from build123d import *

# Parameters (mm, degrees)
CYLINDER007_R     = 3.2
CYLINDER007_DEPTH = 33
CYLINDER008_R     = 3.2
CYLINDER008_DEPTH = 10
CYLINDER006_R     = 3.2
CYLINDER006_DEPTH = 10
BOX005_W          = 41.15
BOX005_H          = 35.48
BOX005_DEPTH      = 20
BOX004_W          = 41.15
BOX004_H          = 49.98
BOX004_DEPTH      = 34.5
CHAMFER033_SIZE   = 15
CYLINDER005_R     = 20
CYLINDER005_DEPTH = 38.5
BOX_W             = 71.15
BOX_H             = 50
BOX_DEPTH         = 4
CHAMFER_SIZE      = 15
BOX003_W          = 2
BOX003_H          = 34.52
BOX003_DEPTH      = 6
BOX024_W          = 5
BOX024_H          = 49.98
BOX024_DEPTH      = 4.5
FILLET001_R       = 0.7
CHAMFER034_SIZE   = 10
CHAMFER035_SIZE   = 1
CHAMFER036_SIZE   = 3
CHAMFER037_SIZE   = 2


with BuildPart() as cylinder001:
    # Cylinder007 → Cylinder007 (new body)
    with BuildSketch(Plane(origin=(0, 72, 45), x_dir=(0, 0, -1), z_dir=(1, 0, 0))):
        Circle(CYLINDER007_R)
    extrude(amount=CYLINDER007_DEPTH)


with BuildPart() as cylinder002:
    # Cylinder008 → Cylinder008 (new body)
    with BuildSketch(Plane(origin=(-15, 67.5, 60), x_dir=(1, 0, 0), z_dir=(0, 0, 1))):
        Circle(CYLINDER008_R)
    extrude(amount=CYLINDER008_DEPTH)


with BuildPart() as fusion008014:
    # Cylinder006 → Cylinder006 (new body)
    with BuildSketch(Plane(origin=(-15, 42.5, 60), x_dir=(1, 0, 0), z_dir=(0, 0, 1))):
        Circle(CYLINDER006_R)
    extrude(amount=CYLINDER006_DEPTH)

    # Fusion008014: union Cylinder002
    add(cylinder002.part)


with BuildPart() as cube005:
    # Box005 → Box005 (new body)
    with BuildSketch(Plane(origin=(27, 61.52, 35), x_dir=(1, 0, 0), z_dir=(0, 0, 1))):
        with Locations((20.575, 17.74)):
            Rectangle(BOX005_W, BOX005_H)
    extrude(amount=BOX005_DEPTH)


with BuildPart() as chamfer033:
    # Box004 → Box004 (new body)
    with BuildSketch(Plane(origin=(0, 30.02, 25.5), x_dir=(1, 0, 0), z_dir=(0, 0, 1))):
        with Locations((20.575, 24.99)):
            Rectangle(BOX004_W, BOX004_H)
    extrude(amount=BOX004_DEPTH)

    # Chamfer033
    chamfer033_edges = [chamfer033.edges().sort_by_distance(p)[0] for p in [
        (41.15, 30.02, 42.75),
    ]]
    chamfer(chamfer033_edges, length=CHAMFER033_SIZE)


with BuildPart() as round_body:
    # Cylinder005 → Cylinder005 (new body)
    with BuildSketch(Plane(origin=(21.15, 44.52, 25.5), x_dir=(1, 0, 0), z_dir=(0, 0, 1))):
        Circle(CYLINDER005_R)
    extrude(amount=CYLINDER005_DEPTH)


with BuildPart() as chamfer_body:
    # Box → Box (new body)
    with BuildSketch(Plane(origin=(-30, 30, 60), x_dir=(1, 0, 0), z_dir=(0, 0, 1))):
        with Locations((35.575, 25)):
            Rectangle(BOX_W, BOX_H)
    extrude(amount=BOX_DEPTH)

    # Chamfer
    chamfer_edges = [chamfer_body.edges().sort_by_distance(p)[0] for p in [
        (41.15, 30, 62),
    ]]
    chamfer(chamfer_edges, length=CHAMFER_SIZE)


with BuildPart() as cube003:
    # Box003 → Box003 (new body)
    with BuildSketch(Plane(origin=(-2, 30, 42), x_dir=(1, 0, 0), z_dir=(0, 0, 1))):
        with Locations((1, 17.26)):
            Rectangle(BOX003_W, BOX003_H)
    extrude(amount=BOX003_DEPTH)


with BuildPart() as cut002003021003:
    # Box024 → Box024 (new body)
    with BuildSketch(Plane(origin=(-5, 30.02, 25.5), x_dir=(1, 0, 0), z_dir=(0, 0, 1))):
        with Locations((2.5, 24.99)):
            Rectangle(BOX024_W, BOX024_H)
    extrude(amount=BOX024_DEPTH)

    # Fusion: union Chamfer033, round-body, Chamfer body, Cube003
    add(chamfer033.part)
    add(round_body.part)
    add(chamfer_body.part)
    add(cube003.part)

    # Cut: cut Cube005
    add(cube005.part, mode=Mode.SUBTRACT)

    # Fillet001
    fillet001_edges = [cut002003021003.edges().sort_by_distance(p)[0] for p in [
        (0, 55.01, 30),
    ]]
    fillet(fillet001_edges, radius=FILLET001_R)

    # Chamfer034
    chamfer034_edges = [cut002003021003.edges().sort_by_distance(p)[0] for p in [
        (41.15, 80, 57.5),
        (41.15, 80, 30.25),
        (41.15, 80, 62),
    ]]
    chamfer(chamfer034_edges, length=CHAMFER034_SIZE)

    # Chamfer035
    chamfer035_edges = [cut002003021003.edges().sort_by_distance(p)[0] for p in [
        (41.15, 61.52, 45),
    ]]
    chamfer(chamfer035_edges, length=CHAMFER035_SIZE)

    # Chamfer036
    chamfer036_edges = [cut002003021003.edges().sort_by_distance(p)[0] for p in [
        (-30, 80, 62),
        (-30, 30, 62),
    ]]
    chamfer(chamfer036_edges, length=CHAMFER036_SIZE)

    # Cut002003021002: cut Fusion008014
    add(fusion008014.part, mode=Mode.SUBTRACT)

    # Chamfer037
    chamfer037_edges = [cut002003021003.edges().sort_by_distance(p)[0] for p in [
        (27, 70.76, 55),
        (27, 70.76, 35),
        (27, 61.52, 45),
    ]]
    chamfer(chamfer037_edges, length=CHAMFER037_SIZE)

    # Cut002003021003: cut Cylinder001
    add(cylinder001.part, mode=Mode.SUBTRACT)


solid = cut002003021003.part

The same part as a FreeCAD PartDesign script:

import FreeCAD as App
import Part
import Sketcher
Q = App.Units.Quantity


def edges_at(feature, points):
    """Names of the edges that pass closest to the given points."""
    edges = feature.Shape.Edges
    near = lambda p: min(range(len(edges)), key=lambda i: edges[i].distToShape(Part.Vertex(*p))[0])
    return sorted({f"Edge{near(p) + 1}" for p in points})

doc = App.newDocument("Part")
params = doc.addObject("Spreadsheet::Sheet", "Params")
for row, (alias, value) in enumerate([
    ("sketch1_diameter", "6.4 mm"),
    ("pad1_length", "33 mm"),
    ("sketch2_diameter", "6.4 mm"),
    ("pad2_length", "10 mm"),
    ("sketch3_diameter", "6.4 mm"),
    ("pad3_length", "10 mm"),
    ("sketch4_width", "41.15 mm"),
    ("sketch4_height", "35.48 mm"),
    ("pad4_length", "20 mm"),
    ("sketch5_width", "41.15 mm"),
    ("sketch5_height", "49.98 mm"),
    ("pad5_length", "34.5 mm"),
    ("chamfer_size", "15 mm"),
    ("sketch6_diameter", "40 mm"),
    ("pad6_length", "38.5 mm"),
    ("sketch7_height", "50 mm"),
    ("sketch7_width", "71.15 mm"),
    ("pad7_length", "4 mm"),
    ("chamfer2_size", "15 mm"),
    ("sketch8_width", "2 mm"),
    ("sketch8_height", "34.52 mm"),
    ("pad8_length", "6 mm"),
    ("sketch9_width", "5 mm"),
    ("sketch9_height", "49.98 mm"),
    ("pad9_length", "4.5 mm"),
    ("fillet_radius", "0.7 mm"),
    ("chamfer3_size", "10 mm"),
    ("chamfer4_size", "1 mm"),
    ("chamfer5_size", "3 mm"),
    ("chamfer6_size", "2 mm"),
], start=1):
    params.set(f"A{row}", alias)
    params.set(f"B{row}", "=" + value)
    params.setAlias(f"B{row}", alias)

body = doc.addObject("PartDesign::Body", "Body")

sketch1 = body.newObject("Sketcher::SketchObject", "Sketch")
sketch1.AttachmentSupport = (doc.getObject("YZ_Plane"), [""])
sketch1.MapMode = "FlatFace"
sketch1.addGeometry(Part.Circle(App.Vector(72, 45, 0), App.Vector(0, 0, 1), 3.2), False)
sketch1.addConstraint([
    Sketcher.Constraint("Diameter", 0, Q("6.4 mm")),
    Sketcher.Constraint("DistanceX", -1, 1, 0, 3, Q("72 mm")),
    Sketcher.Constraint("DistanceY", -1, 1, 0, 3, Q("45 mm")),
])
sketch1.setExpression("Constraints[0]", "Params.sketch1_diameter")
pad1 = body.newObject("PartDesign::Pad", "Pad")
pad1.Profile = sketch1
pad1.setExpression("Length", "Params.pad1_length")
body2 = doc.addObject("PartDesign::Body", "Body001")

sketch2 = body2.newObject("Sketcher::SketchObject", "Sketch001")
sketch2.AttachmentSupport = (doc.getObject("XY_Plane001"), [""])
sketch2.MapMode = "FlatFace"
sketch2.AttachmentOffset = App.Placement(App.Vector(0, 0, 60), App.Rotation())
sketch2.addGeometry(Part.Circle(App.Vector(-15, 67.5, 0), App.Vector(0, 0, 1), 3.2), False)
sketch2.addConstraint([
    Sketcher.Constraint("Diameter", 0, Q("6.4 mm")),
    Sketcher.Constraint("DistanceX", 0, 3, -1, 1, Q("15 mm")),
    Sketcher.Constraint("DistanceY", -1, 1, 0, 3, Q("67.5 mm")),
])
sketch2.setExpression("Constraints[0]", "Params.sketch2_diameter")
pad2 = body2.newObject("PartDesign::Pad", "Pad001")
pad2.Profile = sketch2
pad2.setExpression("Length", "Params.pad2_length")
body3 = doc.addObject("PartDesign::Body", "Body002")
body3.AllowCompound = True

sketch3 = body3.newObject("Sketcher::SketchObject", "Sketch002")
sketch3.AttachmentSupport = (doc.getObject("XY_Plane002"), [""])
sketch3.MapMode = "FlatFace"
sketch3.AttachmentOffset = App.Placement(App.Vector(0, 0, 60), App.Rotation())
sketch3.addGeometry(Part.Circle(App.Vector(-15, 42.5, 0), App.Vector(0, 0, 1), 3.2), False)
sketch3.addConstraint([
    Sketcher.Constraint("Diameter", 0, Q("6.4 mm")),
    Sketcher.Constraint("DistanceX", 0, 3, -1, 1, Q("15 mm")),
    Sketcher.Constraint("DistanceY", -1, 1, 0, 3, Q("42.5 mm")),
])
sketch3.setExpression("Constraints[0]", "Params.sketch3_diameter")
pad3 = body3.newObject("PartDesign::Pad", "Pad002")
pad3.Profile = sketch3
pad3.setExpression("Length", "Params.pad3_length")
doc.recompute()

boolean = body3.newObject("PartDesign::Boolean", "Boolean")
boolean.Type = "Fuse"
boolean.addObjects([body2])
body4 = doc.addObject("PartDesign::Body", "Body003")

sketch4 = body4.newObject("Sketcher::SketchObject", "Sketch003")
sketch4.AttachmentSupport = (doc.getObject("XY_Plane003"), [""])
sketch4.MapMode = "FlatFace"
sketch4.AttachmentOffset = App.Placement(App.Vector(0, 0, 35), App.Rotation())
sketch4.addGeometry([
    Part.LineSegment(App.Vector(27, 97, 0), App.Vector(27, 61.52, 0)),
    Part.LineSegment(App.Vector(27, 61.52, 0), App.Vector(68.15, 61.52, 0)),
    Part.LineSegment(App.Vector(68.15, 61.52, 0), App.Vector(68.15, 97, 0)),
    Part.LineSegment(App.Vector(68.15, 97, 0), App.Vector(27, 97, 0)),
], False)
sketch4.addConstraint([
    Sketcher.Constraint("Coincident", 0, 2, 1, 1),
    Sketcher.Constraint("Coincident", 1, 2, 2, 1),
    Sketcher.Constraint("Coincident", 2, 2, 3, 1),
    Sketcher.Constraint("Coincident", 3, 2, 0, 1),
    Sketcher.Constraint("Vertical", 0),
    Sketcher.Constraint("Horizontal", 1),
    Sketcher.Constraint("Vertical", 2),
    Sketcher.Constraint("Horizontal", 3),
    Sketcher.Constraint("DistanceX", -1, 1, 0, 2, Q("27 mm")),
    Sketcher.Constraint("DistanceY", -1, 1, 2, 2, Q("97 mm")),
    Sketcher.Constraint("DistanceX", 1, 1, 1, 2, Q("41.15 mm")),
    Sketcher.Constraint("DistanceY", 0, 2, 0, 1, Q("35.48 mm")),
])
sketch4.setExpression("Constraints[10]", "Params.sketch4_width")
sketch4.setExpression("Constraints[11]", "Params.sketch4_height")
pad4 = body4.newObject("PartDesign::Pad", "Pad003")
pad4.Profile = sketch4
pad4.setExpression("Length", "Params.pad4_length")
body5 = doc.addObject("PartDesign::Body", "Body004")

sketch5 = body5.newObject("Sketcher::SketchObject", "Sketch004")
sketch5.AttachmentSupport = (doc.getObject("XY_Plane004"), [""])
sketch5.MapMode = "FlatFace"
sketch5.AttachmentOffset = App.Placement(App.Vector(0, 0, 25.5), App.Rotation())
sketch5.addGeometry([
    Part.LineSegment(App.Vector(0, 80, 0), App.Vector(0, 30.02, 0)),
    Part.LineSegment(App.Vector(0, 30.02, 0), App.Vector(41.15, 30.02, 0)),
    Part.LineSegment(App.Vector(41.15, 30.02, 0), App.Vector(41.15, 80, 0)),
    Part.LineSegment(App.Vector(41.15, 80, 0), App.Vector(0, 80, 0)),
], False)
sketch5.addConstraint([
    Sketcher.Constraint("Coincident", 0, 2, 1, 1),
    Sketcher.Constraint("Coincident", 1, 2, 2, 1),
    Sketcher.Constraint("Coincident", 2, 2, 3, 1),
    Sketcher.Constraint("Coincident", 3, 2, 0, 1),
    Sketcher.Constraint("Vertical", 0),
    Sketcher.Constraint("Horizontal", 1),
    Sketcher.Constraint("Vertical", 2),
    Sketcher.Constraint("Horizontal", 3),
    Sketcher.Constraint("PointOnObject", 0, 2, -2),
    Sketcher.Constraint("DistanceY", -1, 1, 2, 2, Q("80 mm")),
    Sketcher.Constraint("DistanceX", 1, 1, 1, 2, Q("41.15 mm")),
    Sketcher.Constraint("DistanceY", 0, 2, 0, 1, Q("49.98 mm")),
])
sketch5.setExpression("Constraints[10]", "Params.sketch5_width")
sketch5.setExpression("Constraints[11]", "Params.sketch5_height")
pad5 = body5.newObject("PartDesign::Pad", "Pad004")
pad5.Profile = sketch5
pad5.setExpression("Length", "Params.pad5_length")
doc.recompute()

chamfer = body5.newObject("PartDesign::Chamfer", "Chamfer")
chamfer.Base = (pad5, edges_at(pad5, [(41.15, 30.02, 42.75)]))
chamfer.setExpression("Size", "Params.chamfer_size")
body6 = doc.addObject("PartDesign::Body", "Body005")

sketch6 = body6.newObject("Sketcher::SketchObject", "Sketch005")
sketch6.AttachmentSupport = (doc.getObject("XY_Plane005"), [""])
sketch6.MapMode = "FlatFace"
sketch6.AttachmentOffset = App.Placement(App.Vector(0, 0, 25.5), App.Rotation())
sketch6.addGeometry(Part.Circle(App.Vector(21.15, 44.52, 0), App.Vector(0, 0, 1), 20), False)
sketch6.addConstraint([
    Sketcher.Constraint("Diameter", 0, Q("40 mm")),
    Sketcher.Constraint("DistanceX", -1, 1, 0, 3, Q("21.15 mm")),
    Sketcher.Constraint("DistanceY", -1, 1, 0, 3, Q("44.52 mm")),
])
sketch6.setExpression("Constraints[0]", "Params.sketch6_diameter")
pad6 = body6.newObject("PartDesign::Pad", "Pad005")
pad6.Profile = sketch6
pad6.setExpression("Length", "Params.pad6_length")
body7 = doc.addObject("PartDesign::Body", "Body006")

sketch7 = body7.newObject("Sketcher::SketchObject", "Sketch006")
sketch7.AttachmentSupport = (doc.getObject("XY_Plane006"), [""])
sketch7.MapMode = "FlatFace"
sketch7.AttachmentOffset = App.Placement(App.Vector(0, 0, 60), App.Rotation())
sketch7.addGeometry([
    Part.LineSegment(App.Vector(-30, 80, 0), App.Vector(-30, 30, 0)),
    Part.LineSegment(App.Vector(-30, 30, 0), App.Vector(41.15, 30, 0)),
    Part.LineSegment(App.Vector(41.15, 30, 0), App.Vector(41.15, 80, 0)),
    Part.LineSegment(App.Vector(41.15, 80, 0), App.Vector(-30, 80, 0)),
], False)
sketch7.addConstraint([
    Sketcher.Constraint("Coincident", 0, 2, 1, 1),
    Sketcher.Constraint("Coincident", 1, 2, 2, 1),
    Sketcher.Constraint("Coincident", 2, 2, 3, 1),
    Sketcher.Constraint("Coincident", 3, 2, 0, 1),
    Sketcher.Constraint("Vertical", 0),
    Sketcher.Constraint("Horizontal", 1),
    Sketcher.Constraint("Vertical", 2),
    Sketcher.Constraint("Horizontal", 3),
    Sketcher.Constraint("DistanceY", 0, 2, 0, 1, Q("50 mm")),
    Sketcher.Constraint("DistanceX", 0, 2, -1, 1, Q("30 mm")),
    Sketcher.Constraint("DistanceY", -1, 1, 0, 2, Q("30 mm")),
    Sketcher.Constraint("DistanceX", 1, 1, 1, 2, Q("71.15 mm")),
])
sketch7.setExpression("Constraints[8]", "Params.sketch7_height")
sketch7.setExpression("Constraints[11]", "Params.sketch7_width")
pad7 = body7.newObject("PartDesign::Pad", "Pad006")
pad7.Profile = sketch7
pad7.setExpression("Length", "Params.pad7_length")
doc.recompute()

chamfer2 = body7.newObject("PartDesign::Chamfer", "Chamfer001")
chamfer2.Base = (pad7, edges_at(pad7, [(41.15, 30, 62)]))
chamfer2.setExpression("Size", "Params.chamfer2_size")
body8 = doc.addObject("PartDesign::Body", "Body007")

sketch8 = body8.newObject("Sketcher::SketchObject", "Sketch007")
sketch8.AttachmentSupport = (doc.getObject("XY_Plane007"), [""])
sketch8.MapMode = "FlatFace"
sketch8.AttachmentOffset = App.Placement(App.Vector(0, 0, 42), App.Rotation())
sketch8.addGeometry([
    Part.LineSegment(App.Vector(-2, 64.52, 0), App.Vector(-2, 30, 0)),
    Part.LineSegment(App.Vector(-2, 30, 0), App.Vector(0, 30, 0)),
    Part.LineSegment(App.Vector(0, 30, 0), App.Vector(0, 64.52, 0)),
    Part.LineSegment(App.Vector(0, 64.52, 0), App.Vector(-2, 64.52, 0)),
], False)
sketch8.addConstraint([
    Sketcher.Constraint("Coincident", 0, 2, 1, 1),
    Sketcher.Constraint("Coincident", 1, 2, 2, 1),
    Sketcher.Constraint("Coincident", 2, 2, 3, 1),
    Sketcher.Constraint("Coincident", 3, 2, 0, 1),
    Sketcher.Constraint("Vertical", 0),
    Sketcher.Constraint("Horizontal", 1),
    Sketcher.Constraint("Vertical", 2),
    Sketcher.Constraint("Horizontal", 3),
    Sketcher.Constraint("PointOnObject", 1, 2, -2),
    Sketcher.Constraint("DistanceX", 1, 1, 1, 2, Q("2 mm")),
    Sketcher.Constraint("DistanceY", -1, 1, 0, 2, Q("30 mm")),
    Sketcher.Constraint("DistanceY", 0, 2, 0, 1, Q("34.52 mm")),
])
sketch8.setExpression("Constraints[9]", "Params.sketch8_width")
sketch8.setExpression("Constraints[11]", "Params.sketch8_height")
pad8 = body8.newObject("PartDesign::Pad", "Pad007")
pad8.Profile = sketch8
pad8.setExpression("Length", "Params.pad8_length")
body9 = doc.addObject("PartDesign::Body", "Body008")

sketch9 = body9.newObject("Sketcher::SketchObject", "Sketch008")
sketch9.AttachmentSupport = (doc.getObject("XY_Plane008"), [""])
sketch9.MapMode = "FlatFace"
sketch9.AttachmentOffset = App.Placement(App.Vector(0, 0, 25.5), App.Rotation())
sketch9.addGeometry([
    Part.LineSegment(App.Vector(-5, 80, 0), App.Vector(-5, 30.02, 0)),
    Part.LineSegment(App.Vector(-5, 30.02, 0), App.Vector(0, 30.02, 0)),
    Part.LineSegment(App.Vector(0, 30.02, 0), App.Vector(0, 80, 0)),
    Part.LineSegment(App.Vector(0, 80, 0), App.Vector(-5, 80, 0)),
], False)
sketch9.addConstraint([
    Sketcher.Constraint("Coincident", 0, 2, 1, 1),
    Sketcher.Constraint("Coincident", 1, 2, 2, 1),
    Sketcher.Constraint("Coincident", 2, 2, 3, 1),
    Sketcher.Constraint("Coincident", 3, 2, 0, 1),
    Sketcher.Constraint("Vertical", 0),
    Sketcher.Constraint("Horizontal", 1),
    Sketcher.Constraint("Vertical", 2),
    Sketcher.Constraint("Horizontal", 3),
    Sketcher.Constraint("PointOnObject", 1, 2, -2),
    Sketcher.Constraint("DistanceX", 1, 1, 1, 2, Q("5 mm")),
    Sketcher.Constraint("DistanceY", -1, 1, 2, 2, Q("80 mm")),
    Sketcher.Constraint("DistanceY", 0, 2, 0, 1, Q("49.98 mm")),
])
sketch9.setExpression("Constraints[9]", "Params.sketch9_width")
sketch9.setExpression("Constraints[11]", "Params.sketch9_height")
pad9 = body9.newObject("PartDesign::Pad", "Pad008")
pad9.Profile = sketch9
pad9.setExpression("Length", "Params.pad9_length")
doc.recompute()

boolean2 = body9.newObject("PartDesign::Boolean", "Boolean001")
boolean2.Type = "Fuse"
boolean2.addObjects([body5])
doc.recompute()

boolean3 = body9.newObject("PartDesign::Boolean", "Boolean002")
boolean3.Type = "Fuse"
boolean3.addObjects([body6])
doc.recompute()

boolean4 = body9.newObject("PartDesign::Boolean", "Boolean003")
boolean4.Type = "Fuse"
boolean4.addObjects([body7])
doc.recompute()

boolean5 = body9.newObject("PartDesign::Boolean", "Boolean004")
boolean5.Type = "Fuse"
boolean5.addObjects([body8])
doc.recompute()

boolean6 = body9.newObject("PartDesign::Boolean", "Boolean005")
boolean6.Type = "Cut"
boolean6.addObjects([body4])
doc.recompute()

fillet = body9.newObject("PartDesign::Fillet", "Fillet")
fillet.Base = (boolean6, edges_at(boolean6, [(0, 55.01, 30)]))
fillet.setExpression("Radius", "Params.fillet_radius")
doc.recompute()

chamfer3 = body9.newObject("PartDesign::Chamfer", "Chamfer002")
chamfer3.Base = (fillet, edges_at(fillet, [(41.15, 80, 59.5), (41.15, 80, 30.25), (41.15, 80, 59.5)]))
chamfer3.setExpression("Size", "Params.chamfer3_size")
doc.recompute()

chamfer4 = body9.newObject("PartDesign::Chamfer", "Chamfer003")
chamfer4.Base = (chamfer3, edges_at(chamfer3, [(41.15, 61.52, 45)]))
chamfer4.setExpression("Size", "Params.chamfer4_size")
doc.recompute()

chamfer5 = body9.newObject("PartDesign::Chamfer", "Chamfer004")
chamfer5.Base = (chamfer4, edges_at(chamfer4, [(-30, 80, 62), (-30, 30, 62)]))
chamfer5.setExpression("Size", "Params.chamfer5_size")
doc.recompute()

boolean7 = body9.newObject("PartDesign::Boolean", "Boolean006")
boolean7.Type = "Cut"
boolean7.addObjects([body3])
doc.recompute()

chamfer6 = body9.newObject("PartDesign::Chamfer", "Chamfer005")
chamfer6.Base = (boolean7, edges_at(boolean7, [(27, 70.76, 55), (27, 70.76, 35), (27, 61.52, 45)]))
chamfer6.setExpression("Size", "Params.chamfer6_size")
doc.recompute()

boolean8 = body9.newObject("PartDesign::Boolean", "Boolean007")
boolean8.Type = "Cut"
boolean8.addObjects([body])

doc.recompute()
